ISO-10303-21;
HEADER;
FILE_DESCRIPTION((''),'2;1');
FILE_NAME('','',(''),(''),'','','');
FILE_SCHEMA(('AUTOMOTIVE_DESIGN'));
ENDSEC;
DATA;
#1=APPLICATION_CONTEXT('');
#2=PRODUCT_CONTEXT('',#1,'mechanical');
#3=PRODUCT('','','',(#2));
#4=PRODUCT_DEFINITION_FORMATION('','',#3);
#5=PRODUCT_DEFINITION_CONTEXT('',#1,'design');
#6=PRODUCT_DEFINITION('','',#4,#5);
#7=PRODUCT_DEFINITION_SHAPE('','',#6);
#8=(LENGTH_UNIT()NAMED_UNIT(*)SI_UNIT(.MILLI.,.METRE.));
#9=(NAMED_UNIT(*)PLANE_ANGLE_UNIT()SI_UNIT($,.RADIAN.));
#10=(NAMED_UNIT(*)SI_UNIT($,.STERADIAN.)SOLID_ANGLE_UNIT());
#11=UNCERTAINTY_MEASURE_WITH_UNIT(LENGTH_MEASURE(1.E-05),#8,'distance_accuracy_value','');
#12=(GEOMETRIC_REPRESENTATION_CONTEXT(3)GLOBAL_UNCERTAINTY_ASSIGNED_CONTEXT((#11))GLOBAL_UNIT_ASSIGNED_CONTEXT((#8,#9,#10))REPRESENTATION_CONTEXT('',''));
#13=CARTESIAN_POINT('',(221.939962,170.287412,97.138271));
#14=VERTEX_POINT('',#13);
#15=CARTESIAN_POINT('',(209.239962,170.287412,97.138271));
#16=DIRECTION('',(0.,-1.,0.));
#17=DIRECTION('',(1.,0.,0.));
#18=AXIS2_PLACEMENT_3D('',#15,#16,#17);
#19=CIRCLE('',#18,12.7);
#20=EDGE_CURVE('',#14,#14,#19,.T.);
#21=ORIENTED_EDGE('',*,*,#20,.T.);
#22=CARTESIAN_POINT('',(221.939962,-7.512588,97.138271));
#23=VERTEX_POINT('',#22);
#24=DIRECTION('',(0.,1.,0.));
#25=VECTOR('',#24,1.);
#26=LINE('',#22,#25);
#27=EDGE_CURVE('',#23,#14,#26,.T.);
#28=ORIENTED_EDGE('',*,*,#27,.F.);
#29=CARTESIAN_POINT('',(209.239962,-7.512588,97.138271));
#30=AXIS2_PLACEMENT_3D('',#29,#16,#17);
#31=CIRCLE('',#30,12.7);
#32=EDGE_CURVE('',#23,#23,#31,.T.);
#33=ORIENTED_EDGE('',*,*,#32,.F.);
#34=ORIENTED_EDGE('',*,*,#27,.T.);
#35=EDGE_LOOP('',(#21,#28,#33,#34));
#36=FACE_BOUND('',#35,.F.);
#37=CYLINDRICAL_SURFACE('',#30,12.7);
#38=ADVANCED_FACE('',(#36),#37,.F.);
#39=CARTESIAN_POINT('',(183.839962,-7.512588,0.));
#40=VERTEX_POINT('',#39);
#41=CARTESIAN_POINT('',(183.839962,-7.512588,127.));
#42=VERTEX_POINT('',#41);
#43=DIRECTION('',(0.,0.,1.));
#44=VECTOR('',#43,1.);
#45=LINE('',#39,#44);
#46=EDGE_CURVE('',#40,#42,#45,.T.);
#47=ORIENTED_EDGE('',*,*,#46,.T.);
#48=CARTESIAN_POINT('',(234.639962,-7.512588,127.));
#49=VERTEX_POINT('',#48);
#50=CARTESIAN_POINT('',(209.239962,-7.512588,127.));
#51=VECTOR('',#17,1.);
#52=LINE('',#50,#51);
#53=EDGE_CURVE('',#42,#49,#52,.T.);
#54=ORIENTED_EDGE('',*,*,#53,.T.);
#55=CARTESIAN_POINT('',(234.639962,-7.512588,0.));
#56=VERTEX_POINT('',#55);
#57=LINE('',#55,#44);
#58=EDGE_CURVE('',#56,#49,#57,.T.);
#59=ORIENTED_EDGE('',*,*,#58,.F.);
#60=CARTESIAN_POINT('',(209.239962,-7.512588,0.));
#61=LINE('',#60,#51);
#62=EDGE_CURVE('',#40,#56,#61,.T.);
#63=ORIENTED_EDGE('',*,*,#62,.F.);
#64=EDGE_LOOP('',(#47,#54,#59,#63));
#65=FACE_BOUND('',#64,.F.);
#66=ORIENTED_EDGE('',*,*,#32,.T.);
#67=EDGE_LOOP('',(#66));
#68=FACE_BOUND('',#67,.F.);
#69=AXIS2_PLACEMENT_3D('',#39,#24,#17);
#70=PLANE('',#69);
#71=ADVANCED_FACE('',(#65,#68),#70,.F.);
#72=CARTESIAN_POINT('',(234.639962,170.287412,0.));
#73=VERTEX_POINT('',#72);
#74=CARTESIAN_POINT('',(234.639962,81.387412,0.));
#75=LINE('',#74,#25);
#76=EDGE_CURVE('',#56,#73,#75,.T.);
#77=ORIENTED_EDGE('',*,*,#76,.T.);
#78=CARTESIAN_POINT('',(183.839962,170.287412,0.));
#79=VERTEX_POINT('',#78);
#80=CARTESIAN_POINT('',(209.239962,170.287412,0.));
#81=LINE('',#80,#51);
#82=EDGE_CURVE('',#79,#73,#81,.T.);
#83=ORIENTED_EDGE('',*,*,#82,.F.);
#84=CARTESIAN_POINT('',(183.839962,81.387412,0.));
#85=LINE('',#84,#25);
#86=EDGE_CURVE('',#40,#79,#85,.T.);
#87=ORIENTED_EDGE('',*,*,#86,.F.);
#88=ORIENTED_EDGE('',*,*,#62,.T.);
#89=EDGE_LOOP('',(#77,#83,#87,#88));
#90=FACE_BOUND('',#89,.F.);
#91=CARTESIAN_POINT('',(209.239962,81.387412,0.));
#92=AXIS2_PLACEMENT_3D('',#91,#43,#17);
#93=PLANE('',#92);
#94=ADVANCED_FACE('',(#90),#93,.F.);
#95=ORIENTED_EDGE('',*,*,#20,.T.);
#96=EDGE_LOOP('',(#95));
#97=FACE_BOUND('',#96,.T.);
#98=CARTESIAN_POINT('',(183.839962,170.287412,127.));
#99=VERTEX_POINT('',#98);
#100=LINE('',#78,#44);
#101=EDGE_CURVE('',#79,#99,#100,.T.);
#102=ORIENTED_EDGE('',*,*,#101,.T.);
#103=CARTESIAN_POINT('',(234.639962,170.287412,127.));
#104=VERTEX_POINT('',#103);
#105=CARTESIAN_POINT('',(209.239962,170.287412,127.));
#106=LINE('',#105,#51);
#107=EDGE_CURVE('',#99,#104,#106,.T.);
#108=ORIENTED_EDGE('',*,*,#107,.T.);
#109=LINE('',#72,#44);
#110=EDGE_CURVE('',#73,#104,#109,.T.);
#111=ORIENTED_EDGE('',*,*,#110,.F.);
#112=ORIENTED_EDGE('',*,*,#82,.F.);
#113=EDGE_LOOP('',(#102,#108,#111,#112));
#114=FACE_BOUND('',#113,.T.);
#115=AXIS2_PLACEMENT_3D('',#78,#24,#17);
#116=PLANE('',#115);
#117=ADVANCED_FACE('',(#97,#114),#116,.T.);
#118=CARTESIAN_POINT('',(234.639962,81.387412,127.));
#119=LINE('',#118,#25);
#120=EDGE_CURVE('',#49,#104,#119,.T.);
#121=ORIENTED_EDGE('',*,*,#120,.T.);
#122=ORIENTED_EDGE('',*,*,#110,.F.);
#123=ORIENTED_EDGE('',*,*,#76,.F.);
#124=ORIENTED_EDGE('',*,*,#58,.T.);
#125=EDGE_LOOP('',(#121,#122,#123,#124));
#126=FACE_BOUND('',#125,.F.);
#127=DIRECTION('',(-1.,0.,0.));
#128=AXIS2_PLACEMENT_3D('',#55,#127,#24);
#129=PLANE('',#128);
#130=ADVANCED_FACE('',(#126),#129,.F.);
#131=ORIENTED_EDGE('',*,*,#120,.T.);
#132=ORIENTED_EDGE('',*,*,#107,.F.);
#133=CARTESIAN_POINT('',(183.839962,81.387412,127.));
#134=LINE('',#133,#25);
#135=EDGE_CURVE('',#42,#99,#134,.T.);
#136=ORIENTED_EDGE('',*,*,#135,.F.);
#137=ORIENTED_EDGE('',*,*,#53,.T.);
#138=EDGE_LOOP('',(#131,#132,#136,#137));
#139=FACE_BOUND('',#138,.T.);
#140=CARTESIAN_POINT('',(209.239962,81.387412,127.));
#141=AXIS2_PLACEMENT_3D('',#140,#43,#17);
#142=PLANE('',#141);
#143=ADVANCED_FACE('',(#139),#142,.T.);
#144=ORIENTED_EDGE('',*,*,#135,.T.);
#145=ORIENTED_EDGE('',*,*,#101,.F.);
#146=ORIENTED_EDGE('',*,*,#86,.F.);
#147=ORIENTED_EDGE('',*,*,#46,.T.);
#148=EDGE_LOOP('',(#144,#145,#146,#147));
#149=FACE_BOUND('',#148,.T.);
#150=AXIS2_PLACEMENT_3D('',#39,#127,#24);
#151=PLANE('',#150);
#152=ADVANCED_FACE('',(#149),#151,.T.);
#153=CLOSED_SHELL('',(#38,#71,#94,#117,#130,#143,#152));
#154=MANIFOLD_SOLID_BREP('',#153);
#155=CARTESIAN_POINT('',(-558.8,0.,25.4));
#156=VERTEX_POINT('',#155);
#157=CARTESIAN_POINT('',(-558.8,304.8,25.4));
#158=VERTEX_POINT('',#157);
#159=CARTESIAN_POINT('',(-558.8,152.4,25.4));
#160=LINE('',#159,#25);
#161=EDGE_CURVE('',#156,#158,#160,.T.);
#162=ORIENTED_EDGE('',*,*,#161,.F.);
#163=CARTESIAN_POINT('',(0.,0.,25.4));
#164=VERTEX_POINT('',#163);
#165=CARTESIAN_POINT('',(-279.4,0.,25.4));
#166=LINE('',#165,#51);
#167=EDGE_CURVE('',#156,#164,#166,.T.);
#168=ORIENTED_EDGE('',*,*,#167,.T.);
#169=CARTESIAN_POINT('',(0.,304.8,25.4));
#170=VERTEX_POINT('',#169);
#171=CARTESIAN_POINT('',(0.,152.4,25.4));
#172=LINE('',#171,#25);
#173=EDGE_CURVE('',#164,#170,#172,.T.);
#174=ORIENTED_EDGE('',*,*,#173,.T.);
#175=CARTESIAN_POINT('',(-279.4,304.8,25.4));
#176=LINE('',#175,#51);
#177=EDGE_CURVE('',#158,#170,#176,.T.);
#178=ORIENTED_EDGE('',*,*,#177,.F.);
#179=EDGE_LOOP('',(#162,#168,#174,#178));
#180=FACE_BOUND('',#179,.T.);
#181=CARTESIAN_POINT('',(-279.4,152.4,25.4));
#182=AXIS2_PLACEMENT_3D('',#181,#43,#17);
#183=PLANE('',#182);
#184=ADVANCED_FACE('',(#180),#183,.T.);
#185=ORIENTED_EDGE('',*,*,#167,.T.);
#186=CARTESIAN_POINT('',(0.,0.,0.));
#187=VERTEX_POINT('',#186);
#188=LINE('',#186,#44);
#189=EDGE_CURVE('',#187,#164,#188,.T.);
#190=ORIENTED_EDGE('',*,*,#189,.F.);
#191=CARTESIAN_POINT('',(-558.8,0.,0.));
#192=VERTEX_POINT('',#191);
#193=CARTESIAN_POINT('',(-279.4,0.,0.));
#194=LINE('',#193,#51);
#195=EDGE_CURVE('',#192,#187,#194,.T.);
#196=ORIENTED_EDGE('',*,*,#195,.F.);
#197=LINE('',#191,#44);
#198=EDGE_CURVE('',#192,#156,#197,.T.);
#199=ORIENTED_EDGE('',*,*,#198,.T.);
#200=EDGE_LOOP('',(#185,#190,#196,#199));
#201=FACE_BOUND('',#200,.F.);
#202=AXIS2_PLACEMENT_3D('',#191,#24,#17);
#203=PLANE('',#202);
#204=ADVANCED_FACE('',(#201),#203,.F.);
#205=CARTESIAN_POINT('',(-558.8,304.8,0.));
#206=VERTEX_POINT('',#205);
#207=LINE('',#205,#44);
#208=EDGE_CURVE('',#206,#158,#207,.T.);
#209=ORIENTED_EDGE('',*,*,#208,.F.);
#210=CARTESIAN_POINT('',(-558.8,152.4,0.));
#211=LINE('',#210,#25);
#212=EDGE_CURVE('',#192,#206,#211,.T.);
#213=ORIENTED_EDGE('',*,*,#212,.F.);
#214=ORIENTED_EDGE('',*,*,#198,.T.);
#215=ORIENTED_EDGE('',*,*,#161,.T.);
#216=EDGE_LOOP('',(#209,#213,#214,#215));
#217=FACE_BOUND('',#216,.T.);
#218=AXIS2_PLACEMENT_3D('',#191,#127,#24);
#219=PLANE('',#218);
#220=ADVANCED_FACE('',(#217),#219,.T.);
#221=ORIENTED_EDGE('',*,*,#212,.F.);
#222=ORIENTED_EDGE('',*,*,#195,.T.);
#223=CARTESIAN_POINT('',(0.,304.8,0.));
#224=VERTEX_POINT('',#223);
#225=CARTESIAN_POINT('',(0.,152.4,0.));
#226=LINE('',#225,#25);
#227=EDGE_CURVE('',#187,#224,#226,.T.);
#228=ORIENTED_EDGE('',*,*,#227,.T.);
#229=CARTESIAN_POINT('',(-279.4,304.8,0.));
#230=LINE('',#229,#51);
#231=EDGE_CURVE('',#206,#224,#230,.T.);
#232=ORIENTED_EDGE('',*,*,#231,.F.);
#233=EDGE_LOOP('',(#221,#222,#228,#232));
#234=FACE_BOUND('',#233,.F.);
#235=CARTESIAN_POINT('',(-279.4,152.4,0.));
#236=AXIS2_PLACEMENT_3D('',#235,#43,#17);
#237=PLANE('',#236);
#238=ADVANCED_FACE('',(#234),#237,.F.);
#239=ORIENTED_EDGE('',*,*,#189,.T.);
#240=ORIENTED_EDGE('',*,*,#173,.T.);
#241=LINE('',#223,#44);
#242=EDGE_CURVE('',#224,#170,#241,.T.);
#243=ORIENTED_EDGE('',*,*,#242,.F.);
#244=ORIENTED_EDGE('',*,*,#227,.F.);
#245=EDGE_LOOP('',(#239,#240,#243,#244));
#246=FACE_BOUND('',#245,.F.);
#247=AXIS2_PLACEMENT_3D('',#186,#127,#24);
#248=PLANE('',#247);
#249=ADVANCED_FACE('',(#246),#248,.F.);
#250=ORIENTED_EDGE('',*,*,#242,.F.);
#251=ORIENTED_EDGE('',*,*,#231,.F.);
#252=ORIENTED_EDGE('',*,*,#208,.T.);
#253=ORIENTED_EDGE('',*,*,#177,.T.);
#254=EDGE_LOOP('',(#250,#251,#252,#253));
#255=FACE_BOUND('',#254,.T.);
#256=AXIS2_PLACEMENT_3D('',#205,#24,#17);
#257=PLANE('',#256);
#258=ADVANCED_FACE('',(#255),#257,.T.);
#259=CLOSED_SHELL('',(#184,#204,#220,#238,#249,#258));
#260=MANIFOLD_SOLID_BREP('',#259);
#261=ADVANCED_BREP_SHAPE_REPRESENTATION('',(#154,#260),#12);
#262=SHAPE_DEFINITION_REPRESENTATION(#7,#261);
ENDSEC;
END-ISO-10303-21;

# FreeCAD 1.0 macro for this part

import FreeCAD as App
import Part
import Sketcher

V = App.Vector
Q = App.Units.Quantity


def add_polygon(sketch, points):
    """Adds a closed chain of lines whose ends are joined by coincident constraints."""
    first, n = sketch.GeometryCount, len(points)
    for a, b in zip(points, points[1:] + points[:1]):
        sketch.addGeometry(Part.LineSegment(App.Vector(*a, 0), App.Vector(*b, 0)), False)
    for i in range(n):
        sketch.addConstraint(Sketcher.Constraint("Coincident", first + i, 2, first + (i + 1) % n, 1))

doc = App.newDocument("Part")
body = doc.addObject("PartDesign::Body", "Body")

sketch1 = body.newObject("Sketcher::SketchObject", "Sketch")
sketch1.AttachmentSupport = (doc.getObject("XY_Plane"), [""])
sketch1.MapMode = "FlatFace"
add_polygon(sketch1, [(184, 170), (184, -8), (235, -8), (235, 170)])
sketch1.addConstraint(Sketcher.Constraint("Vertical", 0))
sketch1.addConstraint(Sketcher.Constraint("Horizontal", 1))
sketch1.addConstraint(Sketcher.Constraint("Vertical", 2))
sketch1.addConstraint(Sketcher.Constraint("Horizontal", 3))
sketch1.addConstraint(Sketcher.Constraint("DistanceX", 1, 1, 1, 2, Q("2 in")))
sketch1.addConstraint(Sketcher.Constraint("DistanceY", 0, 2, 0, 1, Q("7 in")))
sketch1.addConstraint(Sketcher.Constraint("DistanceX", -1, 1, 1, 2, 234.639962))
sketch1.addConstraint(Sketcher.Constraint("DistanceY", -1, 1, 2, 2, 170.287412))
pad1 = body.newObject("PartDesign::Pad", "Pad")
pad1.Profile = sketch1
pad1.Length = Q("5 in")

sketch2 = body.newObject("Sketcher::SketchObject", "Sketch001")
sketch2.AttachmentSupport = (doc.getObject("XZ_Plane"), [""])
sketch2.MapMode = "FlatFace"
sketch2.AttachmentOffset = App.Placement(V(0, 0, 7.512588), App.Rotation())
sketch2.addGeometry(Part.Circle(V(209, 97, 0), V(0, 0, 1), 13), False)
sketch2.addConstraint(Sketcher.Constraint("Diameter", 0, Q("1 in")))
sketch2.addConstraint(Sketcher.Constraint("DistanceX", -1, 1, 0, 3, 209.239962))
sketch2.addConstraint(Sketcher.Constraint("DistanceY", -1, 1, 0, 3, 97.138271))
pocket1 = body.newObject("PartDesign::Pocket", "Pocket")
pocket1.Profile = sketch2
pocket1.Type = "ThroughAll"
body2 = doc.addObject("PartDesign::Body", "Body001")

sketch3 = body2.newObject("Sketcher::SketchObject", "Sketch002")
sketch3.AttachmentSupport = (doc.getObject("XY_Plane001"), [""])
sketch3.MapMode = "FlatFace"
add_polygon(sketch3, [(-559, 305), (-559, 0), (0, 0), (0, 305)])
sketch3.addConstraint(Sketcher.Constraint("Vertical", 0))
sketch3.addConstraint(Sketcher.Constraint("Horizontal", 1))
sketch3.addConstraint(Sketcher.Constraint("Vertical", 2))
sketch3.addConstraint(Sketcher.Constraint("Horizontal", 3))
sketch3.addConstraint(Sketcher.Constraint("Coincident", 1, 2, -1, 1))
sketch3.addConstraint(Sketcher.Constraint("DistanceX", 1, 1, 1, 2, Q("22 in")))
sketch3.addConstraint(Sketcher.Constraint("DistanceY", 0, 2, 0, 1, Q("12 in")))
pad2 = body2.newObject("PartDesign::Pad", "Pad001")
pad2.Profile = sketch3
pad2.Length = Q("1 in")

doc.recompute()
